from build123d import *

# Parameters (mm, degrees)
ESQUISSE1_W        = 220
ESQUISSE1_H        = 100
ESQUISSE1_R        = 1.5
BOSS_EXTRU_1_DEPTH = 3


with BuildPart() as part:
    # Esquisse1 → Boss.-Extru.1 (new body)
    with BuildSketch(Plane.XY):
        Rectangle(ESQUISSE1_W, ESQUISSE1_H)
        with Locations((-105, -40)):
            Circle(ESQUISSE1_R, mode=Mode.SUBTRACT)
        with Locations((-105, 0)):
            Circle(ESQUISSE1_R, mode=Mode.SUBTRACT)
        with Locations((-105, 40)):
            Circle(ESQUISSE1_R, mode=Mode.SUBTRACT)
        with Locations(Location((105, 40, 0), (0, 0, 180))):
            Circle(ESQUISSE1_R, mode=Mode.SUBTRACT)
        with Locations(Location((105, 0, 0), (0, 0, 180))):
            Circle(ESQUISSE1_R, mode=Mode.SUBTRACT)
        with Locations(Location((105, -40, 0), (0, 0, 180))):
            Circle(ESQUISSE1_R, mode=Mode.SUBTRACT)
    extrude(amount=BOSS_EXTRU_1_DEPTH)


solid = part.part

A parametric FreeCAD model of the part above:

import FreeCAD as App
import Part
import Sketcher
from FreeCAD import Vector


def add_polygon(sketch, points):
    """Adds a closed chain of lines whose ends are joined by coincident constraints."""
    first, n = sketch.GeometryCount, len(points)
    for a, b in zip(points, points[1:] + points[:1]):
        sketch.addGeometry(Part.LineSegment(App.Vector(*a, 0), App.Vector(*b, 0)), False)
    for i in range(n):
        sketch.addConstraint(Sketcher.Constraint("Coincident", first + i, 2, first + (i + 1) % n, 1))

doc = App.newDocument("Part")
body = doc.addObject("PartDesign::Body", "Body")

# Sketch on XY plane
sketch1 = body.newObject("Sketcher::SketchObject", "Sketch")
sketch1.AttachmentSupport = (doc.getObject("XY_Plane"), [""])
sketch1.MapMode = "FlatFace"
add_polygon(sketch1, [(-110, 50), (-110, -50), (110, -50), (110, 50)])  # lines 0-3
sketch1.addGeometry(Part.Circle(Vector(-105, -40, 0), Vector(0, 0, 1), 1.5), False)  # 4
sketch1.addGeometry(Part.Circle(Vector(105, -40, 0), Vector(0, 0, 1), 1.5), False)  # 5
sketch1.addGeometry(Part.Circle(Vector(-105, 0, 0), Vector(0, 0, 1), 1.5), False)  # 6
sketch1.addGeometry(Part.Circle(Vector(-105, 40, 0), Vector(0, 0, 1), 1.5), False)  # 7
sketch1.addGeometry(Part.Circle(Vector(105, 0, 0), Vector(0, 0, 1), 1.5), False)  # 8
sketch1.addGeometry(Part.Circle(Vector(105, 40, 0), Vector(0, 0, 1), 1.5), False)  # 9
sketch1.addConstraint([
    Sketcher.Constraint("Vertical", 0),
    Sketcher.Constraint("Horizontal", 1),
    Sketcher.Constraint("Vertical", 2),
    Sketcher.Constraint("Horizontal", 3),
    Sketcher.Constraint("Equal", 4, 5),
    Sketcher.Constraint("Equal", 5, 6),
    Sketcher.Constraint("Equal", 6, 7),
    Sketcher.Constraint("Equal", 7, 8),
    Sketcher.Constraint("Equal", 8, 9),
    Sketcher.Constraint("Symmetric", 5, 3, 7, 3, -1, 1),
    Sketcher.Constraint("Symmetric", 6, 3, 8, 3, -1, 1),
    Sketcher.Constraint("Symmetric", 4, 3, 9, 3, -1, 1),
    Sketcher.Constraint("Symmetric", 0, 2, 2, 2, -1, 1),
    Sketcher.Constraint("Symmetric", 4, 3, 5, 3, -2),
    Sketcher.Constraint("PointOnObject", 6, 3, -1),
    Sketcher.Constraint("Vertical", 4, 3, 6, 3),
    Sketcher.Constraint("Diameter", 4, 3.0),
    Sketcher.Constraint("DistanceX", 1, 1, 1, 2, 220.0),
    Sketcher.Constraint("DistanceY", 0, 2, 0, 1, 100.0),
    Sketcher.Constraint("DistanceX", 4, 3, -1, 1, 105.0),
    Sketcher.Constraint("DistanceY", 4, 3, -1, 1, 40.0),
])
pad1 = body.newObject("PartDesign::Pad", "Pad")
pad1.Profile = sketch1
pad1.Length = 3

doc.recompute()
